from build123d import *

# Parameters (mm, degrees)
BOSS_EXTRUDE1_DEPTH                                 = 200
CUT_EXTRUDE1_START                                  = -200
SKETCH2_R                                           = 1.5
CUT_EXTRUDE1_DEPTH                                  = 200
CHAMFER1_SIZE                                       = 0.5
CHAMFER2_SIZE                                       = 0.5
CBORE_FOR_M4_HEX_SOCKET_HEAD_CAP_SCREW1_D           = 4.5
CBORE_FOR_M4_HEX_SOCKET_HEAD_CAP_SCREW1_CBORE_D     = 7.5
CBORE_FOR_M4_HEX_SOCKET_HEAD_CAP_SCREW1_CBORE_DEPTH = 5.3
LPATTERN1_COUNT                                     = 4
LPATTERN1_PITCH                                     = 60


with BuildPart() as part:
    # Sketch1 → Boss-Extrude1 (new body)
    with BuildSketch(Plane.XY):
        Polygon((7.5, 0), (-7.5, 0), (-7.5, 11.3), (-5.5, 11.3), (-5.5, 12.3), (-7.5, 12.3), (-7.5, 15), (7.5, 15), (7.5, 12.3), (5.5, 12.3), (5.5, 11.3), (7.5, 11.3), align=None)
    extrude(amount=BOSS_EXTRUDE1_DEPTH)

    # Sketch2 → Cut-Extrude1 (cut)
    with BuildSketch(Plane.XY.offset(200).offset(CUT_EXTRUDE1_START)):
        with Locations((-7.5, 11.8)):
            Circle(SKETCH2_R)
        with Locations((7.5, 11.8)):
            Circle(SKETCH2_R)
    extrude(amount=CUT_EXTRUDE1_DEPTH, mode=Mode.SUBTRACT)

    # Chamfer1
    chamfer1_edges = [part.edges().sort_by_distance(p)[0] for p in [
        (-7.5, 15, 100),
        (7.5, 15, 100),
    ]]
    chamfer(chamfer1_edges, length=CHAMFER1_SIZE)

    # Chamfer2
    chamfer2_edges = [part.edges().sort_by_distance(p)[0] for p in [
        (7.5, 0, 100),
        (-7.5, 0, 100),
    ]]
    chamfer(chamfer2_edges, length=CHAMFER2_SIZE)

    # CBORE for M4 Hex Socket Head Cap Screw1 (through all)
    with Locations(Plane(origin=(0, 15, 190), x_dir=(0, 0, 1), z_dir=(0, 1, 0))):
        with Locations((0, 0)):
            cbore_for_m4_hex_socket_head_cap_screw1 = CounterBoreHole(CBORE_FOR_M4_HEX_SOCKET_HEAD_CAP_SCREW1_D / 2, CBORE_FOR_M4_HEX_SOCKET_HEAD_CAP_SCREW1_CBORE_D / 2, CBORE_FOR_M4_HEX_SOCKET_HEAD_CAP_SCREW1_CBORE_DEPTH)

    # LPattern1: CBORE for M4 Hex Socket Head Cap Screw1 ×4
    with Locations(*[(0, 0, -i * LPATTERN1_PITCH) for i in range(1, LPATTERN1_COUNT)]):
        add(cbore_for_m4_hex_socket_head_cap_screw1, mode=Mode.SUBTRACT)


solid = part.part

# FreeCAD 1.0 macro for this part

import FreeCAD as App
import Part
import Sketcher

V = App.Vector


def edges_at(feature, points):
    """Names of the edges that pass closest to the given points."""
    edges = feature.Shape.Edges
    near = lambda p: min(range(len(edges)), key=lambda i: edges[i].distToShape(Part.Vertex(*p))[0])
    return sorted({f"Edge{near(p) + 1}" for p in points})

doc = App.newDocument("Part")
body = doc.addObject("PartDesign::Body", "Body")

# Sketch on XY plane
sketch1 = body.newObject("Sketcher::SketchObject", "Sketch")
sketch1.AttachmentSupport = (doc.getObject("XY_Plane"), [""])
sketch1.MapMode = "FlatFace"
sketch1.addGeometry([
    Part.LineSegment(V(-7.5, 0, 0), V(7.5, 0, 0)),  # 0
    Part.LineSegment(V(7.5, 0, 0), V(7.5, 11.3, 0)),  # 1
    Part.LineSegment(V(7.5, 11.3, 0), V(5.5, 11.3, 0)),  # 2
    Part.LineSegment(V(5.5, 11.3, 0), V(5.5, 12.3, 0)),  # 3
    Part.LineSegment(V(5.5, 12.3, 0), V(7.5, 12.3, 0)),  # 4
    Part.LineSegment(V(7.5, 12.3, 0), V(7.5, 15, 0)),  # 5
    Part.LineSegment(V(7.5, 15, 0), V(-7.5, 15, 0)),  # 6
    Part.LineSegment(V(-7.5, 15, 0), V(-7.5, 12.3, 0)),  # 7
    Part.LineSegment(V(-7.5, 12.3, 0), V(-5.5, 12.3, 0)),  # 8
    Part.LineSegment(V(-5.5, 12.3, 0), V(-5.5, 11.3, 0)),  # 9
    Part.LineSegment(V(-5.5, 11.3, 0), V(-7.5, 11.3, 0)),  # 10
    Part.LineSegment(V(-7.5, 11.3, 0), V(-7.5, 0, 0)),  # 11
], False)
sketch1.addConstraint([
    Sketcher.Constraint("Coincident", 0, 2, 1, 1),
    Sketcher.Constraint("Coincident", 1, 2, 2, 1),
    Sketcher.Constraint("Coincident", 2, 2, 3, 1),
    Sketcher.Constraint("Coincident", 3, 2, 4, 1),
    Sketcher.Constraint("Coincident", 4, 2, 5, 1),
    Sketcher.Constraint("Coincident", 5, 2, 6, 1),
    Sketcher.Constraint("Coincident", 6, 2, 7, 1),
    Sketcher.Constraint("Coincident", 7, 2, 8, 1),
    Sketcher.Constraint("Coincident", 8, 2, 9, 1),
    Sketcher.Constraint("Coincident", 9, 2, 10, 1),
    Sketcher.Constraint("Coincident", 10, 2, 11, 1),
    Sketcher.Constraint("Coincident", 11, 2, 0, 1),
    Sketcher.Constraint("Horizontal", 0),
    Sketcher.Constraint("Vertical", 1),
    Sketcher.Constraint("Horizontal", 2),
    Sketcher.Constraint("Vertical", 3),
    Sketcher.Constraint("Horizontal", 4),
    Sketcher.Constraint("Vertical", 5),
    Sketcher.Constraint("Horizontal", 6),
    Sketcher.Constraint("Vertical", 7),
    Sketcher.Constraint("Horizontal", 8),
    Sketcher.Constraint("Vertical", 9),
    Sketcher.Constraint("Horizontal", 10),
    Sketcher.Constraint("Vertical", 11),
    Sketcher.Constraint("Symmetric", 0, 2, 11, 2, -1, 1),
    Sketcher.Constraint("Symmetric", 4, 2, 7, 2, -2),
    Sketcher.Constraint("Symmetric", 2, 2, 9, 2, -2),
    Sketcher.Constraint("Vertical", 1, 2, 4, 2),
    Sketcher.Constraint("DistanceX", 0, 1, 0, 2, 15.0),
    Sketcher.Constraint("DistanceX", 2, 2, 2, 1, 2.0),
    Sketcher.Constraint("DistanceY", 3, 1, 3, 2, 1.0),
    Sketcher.Constraint("DistanceY", 1, 1, 1, 2, 11.3),
    Sketcher.Constraint("DistanceY", 5, 1, 5, 2, 2.7),
])
pad1 = body.newObject("PartDesign::Pad", "Pad")
pad1.Profile = sketch1
pad1.Length = 200

# Sketch on XY plane
sketch2 = body.newObject("Sketcher::SketchObject", "Sketch001")
sketch2.AttachmentSupport = (doc.getObject("XY_Plane"), [""])
sketch2.MapMode = "FlatFace"
sketch2.addGeometry([
    Part.Circle(V(-7.5, 11.8, 0), V(0, 0, 1), 1.5),
    Part.Circle(V(7.5, 11.8, 0), V(0, 0, 1), 1.5),
], False)
sketch2.addConstraint([
    Sketcher.Constraint("Equal", 0, 1),
    Sketcher.Constraint("Symmetric", 0, 3, 1, 3, -2),
    Sketcher.Constraint("Diameter", 0, 3.0),
    Sketcher.Constraint("DistanceX", 0, 3, 1, 3, 15.0),
    Sketcher.Constraint("DistanceY", -1, 1, 0, 3, 11.8),
])
pocket1 = body.newObject("PartDesign::Pocket", "Pocket")
pocket1.Profile = sketch2
pocket1.Length = 200
pocket1.Reversed = True
doc.recompute()

chamfer = body.newObject("PartDesign::Chamfer", "Chamfer")
chamfer.Base = (pocket1, edges_at(pocket1, [(-7.5, 15, 100), (7.5, 15, 100)]))
chamfer.Size = 0.5
doc.recompute()

chamfer2 = body.newObject("PartDesign::Chamfer", "Chamfer001")
chamfer2.Base = (chamfer, edges_at(chamfer, [(7.5, 0, 100), (-7.5, 0, 100)]))
chamfer2.Size = 0.5

# Sketch on XZ plane
sketch3 = body.newObject("Sketcher::SketchObject", "Sketch002")
sketch3.AttachmentSupport = (doc.getObject("XZ_Plane"), [""])
sketch3.MapMode = "FlatFace"
sketch3.AttachmentOffset = App.Placement(V(0, 0, -15), App.Rotation())
sketch3.addGeometry(Part.Circle(V(0, 190, 0), V(0, 0, 1), 2.2), False)
sketch3.addConstraint([
    Sketcher.Constraint("PointOnObject", 0, 3, -2),
    Sketcher.Constraint("Diameter", 0, 4.5),
    Sketcher.Constraint("DistanceY", -1, 1, 0, 3, 190.0),
])
doc.recompute()
hole = body.newObject("PartDesign::Hole", "Hole")
hole.Profile = sketch3
hole.ThreadType = "None"
hole.Diameter = 4.5
hole.DepthType = "ThroughAll"
hole.HoleCutType = "Counterbore"
hole.HoleCutDiameter = 7.5
hole.HoleCutDepth = 5.3
hole.Reversed = True
doc.recompute()

linearpattern = body.newObject("PartDesign::LinearPattern", "LinearPattern")
linearpattern.Originals = [hole]
linearpattern.Direction = (doc.getObject("Z_Axis"), [""])
linearpattern.Mode = "offset"
linearpattern.Offset = 60
linearpattern.Occurrences = 4
linearpattern.Reversed = True
body.Tip = linearpattern

doc.recompute()
